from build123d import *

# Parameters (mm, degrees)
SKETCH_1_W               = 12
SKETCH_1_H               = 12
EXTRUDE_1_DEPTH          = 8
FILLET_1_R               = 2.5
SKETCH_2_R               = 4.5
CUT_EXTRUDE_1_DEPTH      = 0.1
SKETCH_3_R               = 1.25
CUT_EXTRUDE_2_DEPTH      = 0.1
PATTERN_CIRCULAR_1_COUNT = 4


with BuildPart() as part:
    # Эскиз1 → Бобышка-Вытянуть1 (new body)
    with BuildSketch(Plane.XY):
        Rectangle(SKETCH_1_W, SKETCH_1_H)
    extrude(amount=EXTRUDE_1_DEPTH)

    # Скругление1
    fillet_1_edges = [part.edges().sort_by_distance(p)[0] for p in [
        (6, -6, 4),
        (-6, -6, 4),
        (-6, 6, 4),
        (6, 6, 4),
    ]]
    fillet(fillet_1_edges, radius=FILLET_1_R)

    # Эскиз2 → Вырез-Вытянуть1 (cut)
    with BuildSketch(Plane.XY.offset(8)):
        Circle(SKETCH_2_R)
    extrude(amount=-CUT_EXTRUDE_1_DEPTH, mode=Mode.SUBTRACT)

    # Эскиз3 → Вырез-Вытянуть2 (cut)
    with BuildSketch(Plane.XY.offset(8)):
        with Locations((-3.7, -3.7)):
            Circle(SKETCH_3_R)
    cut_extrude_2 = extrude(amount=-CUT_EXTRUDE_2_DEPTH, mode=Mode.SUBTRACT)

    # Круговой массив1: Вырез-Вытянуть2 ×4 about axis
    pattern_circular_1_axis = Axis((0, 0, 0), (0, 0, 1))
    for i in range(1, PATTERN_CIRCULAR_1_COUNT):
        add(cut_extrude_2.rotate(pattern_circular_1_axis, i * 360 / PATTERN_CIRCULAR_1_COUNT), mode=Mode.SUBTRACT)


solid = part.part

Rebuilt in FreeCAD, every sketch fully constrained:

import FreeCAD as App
import Part
import Sketcher
Q = App.Units.Quantity


def edges_at(feature, points):
    """Names of the edges that pass closest to the given points."""
    edges = feature.Shape.Edges
    near = lambda p: min(range(len(edges)), key=lambda i: edges[i].distToShape(Part.Vertex(*p))[0])
    return sorted({f"Edge{near(p) + 1}" for p in points})

doc = App.newDocument("Part")
body = doc.addObject("PartDesign::Body", "Body")

sketch1 = body.newObject("Sketcher::SketchObject", "Sketch")
sketch1.AttachmentSupport = (doc.getObject("XY_Plane"), [""])
sketch1.MapMode = "FlatFace"
sketch1.addGeometry(Part.LineSegment(App.Vector(-6, 6, 0), App.Vector(-6, -6, 0)), False)
sketch1.addGeometry(Part.LineSegment(App.Vector(-6, -6, 0), App.Vector(6, -6, 0)), False)
sketch1.addGeometry(Part.LineSegment(App.Vector(6, -6, 0), App.Vector(6, 6, 0)), False)
sketch1.addGeometry(Part.LineSegment(App.Vector(6, 6, 0), App.Vector(-6, 6, 0)), False)
sketch1.addConstraint(Sketcher.Constraint("Coincident", 0, 2, 1, 1))
sketch1.addConstraint(Sketcher.Constraint("Coincident", 1, 2, 2, 1))
sketch1.addConstraint(Sketcher.Constraint("Coincident", 2, 2, 3, 1))
sketch1.addConstraint(Sketcher.Constraint("Coincident", 3, 2, 0, 1))
sketch1.addConstraint(Sketcher.Constraint("Vertical", 0))
sketch1.addConstraint(Sketcher.Constraint("Horizontal", 1))
sketch1.addConstraint(Sketcher.Constraint("Vertical", 2))
sketch1.addConstraint(Sketcher.Constraint("Horizontal", 3))
sketch1.addConstraint(Sketcher.Constraint("Symmetric", 0, 2, 2, 2, -1, 1))
sketch1.addConstraint(Sketcher.Constraint("Equal", 3, 0))
sketch1.addConstraint(Sketcher.Constraint("DistanceX", 1, 1, 1, 2, Q("12 mm")))
pad1 = body.newObject("PartDesign::Pad", "Pad")
pad1.Profile = sketch1
pad1.Length = 8
doc.recompute()

fillet = body.newObject("PartDesign::Fillet", "Fillet")
fillet.Base = (pad1, edges_at(pad1, [
    (6, -6, 4),
    (-6, -6, 4),
    (-6, 6, 4),
    (6, 6, 4),
]))
fillet.Radius = 2.5

sketch2 = body.newObject("Sketcher::SketchObject", "Sketch001")
sketch2.AttachmentSupport = (doc.getObject("XY_Plane"), [""])
sketch2.MapMode = "FlatFace"
sketch2.AttachmentOffset = App.Placement(App.Vector(0, 0, 8), App.Rotation())
sketch2.addGeometry(Part.Circle(App.Vector(0, 0, 0), App.Vector(0, 0, 1), 4.5), False)
sketch2.addConstraint(Sketcher.Constraint("Coincident", 0, 3, -1, 1))
sketch2.addConstraint(Sketcher.Constraint("Diameter", 0, Q("9 mm")))
pocket1 = body.newObject("PartDesign::Pocket", "Pocket")
pocket1.Profile = sketch2
pocket1.Length = 0.1

sketch3 = body.newObject("Sketcher::SketchObject", "Sketch002")
sketch3.AttachmentSupport = (doc.getObject("XY_Plane"), [""])
sketch3.MapMode = "FlatFace"
sketch3.AttachmentOffset = App.Placement(App.Vector(0, 0, 8), App.Rotation())
sketch3.addGeometry(Part.Circle(App.Vector(-3.7, -3.7, 0), App.Vector(0, 0, 1), 1.2), False)
sketch3.addConstraint(Sketcher.Constraint("Diameter", 0, Q("2.5 mm")))
sketch3.addConstraint(Sketcher.Constraint("DistanceX", 0, 3, -1, 1, Q("3.7 mm")))
sketch3.addConstraint(Sketcher.Constraint("DistanceY", 0, 3, -1, 1, Q("3.7 mm")))
pocket2 = body.newObject("PartDesign::Pocket", "Pocket001")
pocket2.Profile = sketch3
pocket2.Length = 0.1
doc.recompute()

polarpattern = body.newObject("PartDesign::PolarPattern", "PolarPattern")
polarpattern.Originals = [pocket2]
polarpattern.Axis = (doc.getObject("Z_Axis"), [""])
polarpattern.Angle = 360
polarpattern.Occurrences = 4
body.Tip = polarpattern

doc.recompute()
